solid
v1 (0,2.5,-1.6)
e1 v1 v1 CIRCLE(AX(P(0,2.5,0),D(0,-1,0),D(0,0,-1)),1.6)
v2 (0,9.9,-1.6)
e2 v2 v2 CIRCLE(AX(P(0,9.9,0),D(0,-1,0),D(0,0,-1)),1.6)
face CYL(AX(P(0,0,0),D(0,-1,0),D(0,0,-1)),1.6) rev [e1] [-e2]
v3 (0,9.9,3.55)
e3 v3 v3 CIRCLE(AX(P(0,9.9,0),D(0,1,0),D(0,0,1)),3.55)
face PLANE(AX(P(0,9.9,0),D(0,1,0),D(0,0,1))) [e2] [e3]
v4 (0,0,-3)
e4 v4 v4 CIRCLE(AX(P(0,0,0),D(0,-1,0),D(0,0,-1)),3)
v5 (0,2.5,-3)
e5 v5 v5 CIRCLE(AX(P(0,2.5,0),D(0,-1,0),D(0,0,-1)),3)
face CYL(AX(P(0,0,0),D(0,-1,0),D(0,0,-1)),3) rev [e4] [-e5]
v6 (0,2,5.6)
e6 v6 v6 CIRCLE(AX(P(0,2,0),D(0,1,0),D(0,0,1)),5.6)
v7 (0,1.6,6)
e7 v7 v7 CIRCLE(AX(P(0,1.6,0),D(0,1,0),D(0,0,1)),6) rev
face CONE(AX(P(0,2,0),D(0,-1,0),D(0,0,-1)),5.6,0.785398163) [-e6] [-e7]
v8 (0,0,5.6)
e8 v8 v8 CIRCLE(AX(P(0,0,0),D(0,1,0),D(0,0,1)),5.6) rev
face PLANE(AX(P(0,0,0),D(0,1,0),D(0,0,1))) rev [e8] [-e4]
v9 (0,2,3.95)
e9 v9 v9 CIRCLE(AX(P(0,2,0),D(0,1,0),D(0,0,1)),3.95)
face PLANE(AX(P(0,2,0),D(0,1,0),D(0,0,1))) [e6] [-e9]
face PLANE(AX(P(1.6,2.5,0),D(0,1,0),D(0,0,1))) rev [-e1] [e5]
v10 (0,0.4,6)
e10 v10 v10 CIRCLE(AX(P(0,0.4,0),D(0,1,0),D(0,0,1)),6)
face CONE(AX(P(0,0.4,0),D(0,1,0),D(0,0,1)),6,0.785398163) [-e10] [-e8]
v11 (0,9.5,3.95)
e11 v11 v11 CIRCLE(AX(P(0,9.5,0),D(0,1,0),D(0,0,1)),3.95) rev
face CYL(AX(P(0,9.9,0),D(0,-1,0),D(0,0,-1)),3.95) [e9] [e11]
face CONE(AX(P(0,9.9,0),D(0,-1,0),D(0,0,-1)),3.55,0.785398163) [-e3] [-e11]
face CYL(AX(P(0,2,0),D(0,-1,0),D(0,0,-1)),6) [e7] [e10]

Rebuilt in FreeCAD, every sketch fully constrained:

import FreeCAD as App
import Part
import Sketcher

V = App.Vector
Q = App.Units.Quantity


def edges_at(feature, points):
    """Names of the edges that pass closest to the given points."""
    edges = feature.Shape.Edges
    near = lambda p: min(range(len(edges)), key=lambda i: edges[i].distToShape(Part.Vertex(*p))[0])
    return sorted({f"Edge{near(p) + 1}" for p in points})

doc = App.newDocument("Part")
params = doc.addObject("Spreadsheet::Sheet", "Params")
for row, (alias, value) in enumerate([
    ("sketch1_diameter", "12 mm"),
    ("pad1_length", "2 mm"),
    ("sketch2_diameter", "7.9 mm"),
    ("pad2_length", "7.9 mm"),
    ("chamfer_size", "0.4 mm"),
    ("sketch3_diameter", "3.2 mm"),
    ("hole_diameter", "3.2 mm"),
    ("hole_cbore_diameter", "6 mm"),
    ("hole_cbore_depth", "2.5 mm"),
], start=1):
    params.set(f"A{row}", alias)
    params.set(f"B{row}", "=" + value)
    params.setAlias(f"B{row}", alias)

body = doc.addObject("PartDesign::Body", "Body")

# Sketch on XZ plane
sketch1 = body.newObject("Sketcher::SketchObject", "Sketch")
sketch1.AttachmentSupport = (doc.getObject("XZ_Plane"), [""])
sketch1.MapMode = "FlatFace"
sketch1.addGeometry(Part.Circle(V(0, 0, 0), V(0, 0, 1), 6), False)
sketch1.addConstraint([
    Sketcher.Constraint("Coincident", 0, 3, -1, 1),
    Sketcher.Constraint("Diameter", 0, Q("12 mm")),
])
sketch1.setExpression("Constraints[1]", "Params.sketch1_diameter")
pad1 = body.newObject("PartDesign::Pad", "Pad")
pad1.Profile = sketch1
pad1.setExpression("Length", "Params.pad1_length")
pad1.Reversed = True

# Sketch on XZ plane
sketch2 = body.newObject("Sketcher::SketchObject", "Sketch001")
sketch2.AttachmentSupport = (doc.getObject("XZ_Plane"), [""])
sketch2.MapMode = "FlatFace"
sketch2.AttachmentOffset = App.Placement(V(0, 0, -2), App.Rotation())
sketch2.addGeometry(Part.Circle(V(0, 0, 0), V(0, 0, 1), 4), False)
sketch2.addConstraint([
    Sketcher.Constraint("Coincident", 0, 3, -1, 1),
    Sketcher.Constraint("Diameter", 0, Q("7.9 mm")),
])
sketch2.setExpression("Constraints[1]", "Params.sketch2_diameter")
pad2 = body.newObject("PartDesign::Pad", "Pad001")
pad2.Profile = sketch2
pad2.setExpression("Length", "Params.pad2_length")
pad2.Reversed = True
doc.recompute()

chamfer = body.newObject("PartDesign::Chamfer", "Chamfer")
chamfer.Base = (pad2, edges_at(pad2, [(-6, 0, 0), (-6, 2, 0), (-3.95, 9.9, 0)]))
chamfer.setExpression("Size", "Params.chamfer_size")

# Sketch on XZ plane
sketch3 = body.newObject("Sketcher::SketchObject", "Sketch002")
sketch3.AttachmentSupport = (doc.getObject("XZ_Plane"), [""])
sketch3.MapMode = "FlatFace"
sketch3.addGeometry(Part.Circle(V(0, 0, 0), V(0, 0, 1), 1.6), False)
sketch3.addConstraint([
    Sketcher.Constraint("Coincident", 0, 3, -1, 1),
    Sketcher.Constraint("Diameter", 0, Q("3.2 mm")),
])
sketch3.setExpression("Constraints[1]", "Params.sketch3_diameter")
doc.recompute()
hole = body.newObject("PartDesign::Hole", "Hole")
hole.Profile = sketch3
hole.ThreadType = "None"
hole.setExpression("Diameter", "Params.hole_diameter")
hole.DepthType = "ThroughAll"
hole.HoleCutType = "Counterbore"
hole.setExpression("HoleCutDiameter", "Params.hole_cbore_diameter")
hole.setExpression("HoleCutDepth", "Params.hole_cbore_depth")

doc.recompute()
